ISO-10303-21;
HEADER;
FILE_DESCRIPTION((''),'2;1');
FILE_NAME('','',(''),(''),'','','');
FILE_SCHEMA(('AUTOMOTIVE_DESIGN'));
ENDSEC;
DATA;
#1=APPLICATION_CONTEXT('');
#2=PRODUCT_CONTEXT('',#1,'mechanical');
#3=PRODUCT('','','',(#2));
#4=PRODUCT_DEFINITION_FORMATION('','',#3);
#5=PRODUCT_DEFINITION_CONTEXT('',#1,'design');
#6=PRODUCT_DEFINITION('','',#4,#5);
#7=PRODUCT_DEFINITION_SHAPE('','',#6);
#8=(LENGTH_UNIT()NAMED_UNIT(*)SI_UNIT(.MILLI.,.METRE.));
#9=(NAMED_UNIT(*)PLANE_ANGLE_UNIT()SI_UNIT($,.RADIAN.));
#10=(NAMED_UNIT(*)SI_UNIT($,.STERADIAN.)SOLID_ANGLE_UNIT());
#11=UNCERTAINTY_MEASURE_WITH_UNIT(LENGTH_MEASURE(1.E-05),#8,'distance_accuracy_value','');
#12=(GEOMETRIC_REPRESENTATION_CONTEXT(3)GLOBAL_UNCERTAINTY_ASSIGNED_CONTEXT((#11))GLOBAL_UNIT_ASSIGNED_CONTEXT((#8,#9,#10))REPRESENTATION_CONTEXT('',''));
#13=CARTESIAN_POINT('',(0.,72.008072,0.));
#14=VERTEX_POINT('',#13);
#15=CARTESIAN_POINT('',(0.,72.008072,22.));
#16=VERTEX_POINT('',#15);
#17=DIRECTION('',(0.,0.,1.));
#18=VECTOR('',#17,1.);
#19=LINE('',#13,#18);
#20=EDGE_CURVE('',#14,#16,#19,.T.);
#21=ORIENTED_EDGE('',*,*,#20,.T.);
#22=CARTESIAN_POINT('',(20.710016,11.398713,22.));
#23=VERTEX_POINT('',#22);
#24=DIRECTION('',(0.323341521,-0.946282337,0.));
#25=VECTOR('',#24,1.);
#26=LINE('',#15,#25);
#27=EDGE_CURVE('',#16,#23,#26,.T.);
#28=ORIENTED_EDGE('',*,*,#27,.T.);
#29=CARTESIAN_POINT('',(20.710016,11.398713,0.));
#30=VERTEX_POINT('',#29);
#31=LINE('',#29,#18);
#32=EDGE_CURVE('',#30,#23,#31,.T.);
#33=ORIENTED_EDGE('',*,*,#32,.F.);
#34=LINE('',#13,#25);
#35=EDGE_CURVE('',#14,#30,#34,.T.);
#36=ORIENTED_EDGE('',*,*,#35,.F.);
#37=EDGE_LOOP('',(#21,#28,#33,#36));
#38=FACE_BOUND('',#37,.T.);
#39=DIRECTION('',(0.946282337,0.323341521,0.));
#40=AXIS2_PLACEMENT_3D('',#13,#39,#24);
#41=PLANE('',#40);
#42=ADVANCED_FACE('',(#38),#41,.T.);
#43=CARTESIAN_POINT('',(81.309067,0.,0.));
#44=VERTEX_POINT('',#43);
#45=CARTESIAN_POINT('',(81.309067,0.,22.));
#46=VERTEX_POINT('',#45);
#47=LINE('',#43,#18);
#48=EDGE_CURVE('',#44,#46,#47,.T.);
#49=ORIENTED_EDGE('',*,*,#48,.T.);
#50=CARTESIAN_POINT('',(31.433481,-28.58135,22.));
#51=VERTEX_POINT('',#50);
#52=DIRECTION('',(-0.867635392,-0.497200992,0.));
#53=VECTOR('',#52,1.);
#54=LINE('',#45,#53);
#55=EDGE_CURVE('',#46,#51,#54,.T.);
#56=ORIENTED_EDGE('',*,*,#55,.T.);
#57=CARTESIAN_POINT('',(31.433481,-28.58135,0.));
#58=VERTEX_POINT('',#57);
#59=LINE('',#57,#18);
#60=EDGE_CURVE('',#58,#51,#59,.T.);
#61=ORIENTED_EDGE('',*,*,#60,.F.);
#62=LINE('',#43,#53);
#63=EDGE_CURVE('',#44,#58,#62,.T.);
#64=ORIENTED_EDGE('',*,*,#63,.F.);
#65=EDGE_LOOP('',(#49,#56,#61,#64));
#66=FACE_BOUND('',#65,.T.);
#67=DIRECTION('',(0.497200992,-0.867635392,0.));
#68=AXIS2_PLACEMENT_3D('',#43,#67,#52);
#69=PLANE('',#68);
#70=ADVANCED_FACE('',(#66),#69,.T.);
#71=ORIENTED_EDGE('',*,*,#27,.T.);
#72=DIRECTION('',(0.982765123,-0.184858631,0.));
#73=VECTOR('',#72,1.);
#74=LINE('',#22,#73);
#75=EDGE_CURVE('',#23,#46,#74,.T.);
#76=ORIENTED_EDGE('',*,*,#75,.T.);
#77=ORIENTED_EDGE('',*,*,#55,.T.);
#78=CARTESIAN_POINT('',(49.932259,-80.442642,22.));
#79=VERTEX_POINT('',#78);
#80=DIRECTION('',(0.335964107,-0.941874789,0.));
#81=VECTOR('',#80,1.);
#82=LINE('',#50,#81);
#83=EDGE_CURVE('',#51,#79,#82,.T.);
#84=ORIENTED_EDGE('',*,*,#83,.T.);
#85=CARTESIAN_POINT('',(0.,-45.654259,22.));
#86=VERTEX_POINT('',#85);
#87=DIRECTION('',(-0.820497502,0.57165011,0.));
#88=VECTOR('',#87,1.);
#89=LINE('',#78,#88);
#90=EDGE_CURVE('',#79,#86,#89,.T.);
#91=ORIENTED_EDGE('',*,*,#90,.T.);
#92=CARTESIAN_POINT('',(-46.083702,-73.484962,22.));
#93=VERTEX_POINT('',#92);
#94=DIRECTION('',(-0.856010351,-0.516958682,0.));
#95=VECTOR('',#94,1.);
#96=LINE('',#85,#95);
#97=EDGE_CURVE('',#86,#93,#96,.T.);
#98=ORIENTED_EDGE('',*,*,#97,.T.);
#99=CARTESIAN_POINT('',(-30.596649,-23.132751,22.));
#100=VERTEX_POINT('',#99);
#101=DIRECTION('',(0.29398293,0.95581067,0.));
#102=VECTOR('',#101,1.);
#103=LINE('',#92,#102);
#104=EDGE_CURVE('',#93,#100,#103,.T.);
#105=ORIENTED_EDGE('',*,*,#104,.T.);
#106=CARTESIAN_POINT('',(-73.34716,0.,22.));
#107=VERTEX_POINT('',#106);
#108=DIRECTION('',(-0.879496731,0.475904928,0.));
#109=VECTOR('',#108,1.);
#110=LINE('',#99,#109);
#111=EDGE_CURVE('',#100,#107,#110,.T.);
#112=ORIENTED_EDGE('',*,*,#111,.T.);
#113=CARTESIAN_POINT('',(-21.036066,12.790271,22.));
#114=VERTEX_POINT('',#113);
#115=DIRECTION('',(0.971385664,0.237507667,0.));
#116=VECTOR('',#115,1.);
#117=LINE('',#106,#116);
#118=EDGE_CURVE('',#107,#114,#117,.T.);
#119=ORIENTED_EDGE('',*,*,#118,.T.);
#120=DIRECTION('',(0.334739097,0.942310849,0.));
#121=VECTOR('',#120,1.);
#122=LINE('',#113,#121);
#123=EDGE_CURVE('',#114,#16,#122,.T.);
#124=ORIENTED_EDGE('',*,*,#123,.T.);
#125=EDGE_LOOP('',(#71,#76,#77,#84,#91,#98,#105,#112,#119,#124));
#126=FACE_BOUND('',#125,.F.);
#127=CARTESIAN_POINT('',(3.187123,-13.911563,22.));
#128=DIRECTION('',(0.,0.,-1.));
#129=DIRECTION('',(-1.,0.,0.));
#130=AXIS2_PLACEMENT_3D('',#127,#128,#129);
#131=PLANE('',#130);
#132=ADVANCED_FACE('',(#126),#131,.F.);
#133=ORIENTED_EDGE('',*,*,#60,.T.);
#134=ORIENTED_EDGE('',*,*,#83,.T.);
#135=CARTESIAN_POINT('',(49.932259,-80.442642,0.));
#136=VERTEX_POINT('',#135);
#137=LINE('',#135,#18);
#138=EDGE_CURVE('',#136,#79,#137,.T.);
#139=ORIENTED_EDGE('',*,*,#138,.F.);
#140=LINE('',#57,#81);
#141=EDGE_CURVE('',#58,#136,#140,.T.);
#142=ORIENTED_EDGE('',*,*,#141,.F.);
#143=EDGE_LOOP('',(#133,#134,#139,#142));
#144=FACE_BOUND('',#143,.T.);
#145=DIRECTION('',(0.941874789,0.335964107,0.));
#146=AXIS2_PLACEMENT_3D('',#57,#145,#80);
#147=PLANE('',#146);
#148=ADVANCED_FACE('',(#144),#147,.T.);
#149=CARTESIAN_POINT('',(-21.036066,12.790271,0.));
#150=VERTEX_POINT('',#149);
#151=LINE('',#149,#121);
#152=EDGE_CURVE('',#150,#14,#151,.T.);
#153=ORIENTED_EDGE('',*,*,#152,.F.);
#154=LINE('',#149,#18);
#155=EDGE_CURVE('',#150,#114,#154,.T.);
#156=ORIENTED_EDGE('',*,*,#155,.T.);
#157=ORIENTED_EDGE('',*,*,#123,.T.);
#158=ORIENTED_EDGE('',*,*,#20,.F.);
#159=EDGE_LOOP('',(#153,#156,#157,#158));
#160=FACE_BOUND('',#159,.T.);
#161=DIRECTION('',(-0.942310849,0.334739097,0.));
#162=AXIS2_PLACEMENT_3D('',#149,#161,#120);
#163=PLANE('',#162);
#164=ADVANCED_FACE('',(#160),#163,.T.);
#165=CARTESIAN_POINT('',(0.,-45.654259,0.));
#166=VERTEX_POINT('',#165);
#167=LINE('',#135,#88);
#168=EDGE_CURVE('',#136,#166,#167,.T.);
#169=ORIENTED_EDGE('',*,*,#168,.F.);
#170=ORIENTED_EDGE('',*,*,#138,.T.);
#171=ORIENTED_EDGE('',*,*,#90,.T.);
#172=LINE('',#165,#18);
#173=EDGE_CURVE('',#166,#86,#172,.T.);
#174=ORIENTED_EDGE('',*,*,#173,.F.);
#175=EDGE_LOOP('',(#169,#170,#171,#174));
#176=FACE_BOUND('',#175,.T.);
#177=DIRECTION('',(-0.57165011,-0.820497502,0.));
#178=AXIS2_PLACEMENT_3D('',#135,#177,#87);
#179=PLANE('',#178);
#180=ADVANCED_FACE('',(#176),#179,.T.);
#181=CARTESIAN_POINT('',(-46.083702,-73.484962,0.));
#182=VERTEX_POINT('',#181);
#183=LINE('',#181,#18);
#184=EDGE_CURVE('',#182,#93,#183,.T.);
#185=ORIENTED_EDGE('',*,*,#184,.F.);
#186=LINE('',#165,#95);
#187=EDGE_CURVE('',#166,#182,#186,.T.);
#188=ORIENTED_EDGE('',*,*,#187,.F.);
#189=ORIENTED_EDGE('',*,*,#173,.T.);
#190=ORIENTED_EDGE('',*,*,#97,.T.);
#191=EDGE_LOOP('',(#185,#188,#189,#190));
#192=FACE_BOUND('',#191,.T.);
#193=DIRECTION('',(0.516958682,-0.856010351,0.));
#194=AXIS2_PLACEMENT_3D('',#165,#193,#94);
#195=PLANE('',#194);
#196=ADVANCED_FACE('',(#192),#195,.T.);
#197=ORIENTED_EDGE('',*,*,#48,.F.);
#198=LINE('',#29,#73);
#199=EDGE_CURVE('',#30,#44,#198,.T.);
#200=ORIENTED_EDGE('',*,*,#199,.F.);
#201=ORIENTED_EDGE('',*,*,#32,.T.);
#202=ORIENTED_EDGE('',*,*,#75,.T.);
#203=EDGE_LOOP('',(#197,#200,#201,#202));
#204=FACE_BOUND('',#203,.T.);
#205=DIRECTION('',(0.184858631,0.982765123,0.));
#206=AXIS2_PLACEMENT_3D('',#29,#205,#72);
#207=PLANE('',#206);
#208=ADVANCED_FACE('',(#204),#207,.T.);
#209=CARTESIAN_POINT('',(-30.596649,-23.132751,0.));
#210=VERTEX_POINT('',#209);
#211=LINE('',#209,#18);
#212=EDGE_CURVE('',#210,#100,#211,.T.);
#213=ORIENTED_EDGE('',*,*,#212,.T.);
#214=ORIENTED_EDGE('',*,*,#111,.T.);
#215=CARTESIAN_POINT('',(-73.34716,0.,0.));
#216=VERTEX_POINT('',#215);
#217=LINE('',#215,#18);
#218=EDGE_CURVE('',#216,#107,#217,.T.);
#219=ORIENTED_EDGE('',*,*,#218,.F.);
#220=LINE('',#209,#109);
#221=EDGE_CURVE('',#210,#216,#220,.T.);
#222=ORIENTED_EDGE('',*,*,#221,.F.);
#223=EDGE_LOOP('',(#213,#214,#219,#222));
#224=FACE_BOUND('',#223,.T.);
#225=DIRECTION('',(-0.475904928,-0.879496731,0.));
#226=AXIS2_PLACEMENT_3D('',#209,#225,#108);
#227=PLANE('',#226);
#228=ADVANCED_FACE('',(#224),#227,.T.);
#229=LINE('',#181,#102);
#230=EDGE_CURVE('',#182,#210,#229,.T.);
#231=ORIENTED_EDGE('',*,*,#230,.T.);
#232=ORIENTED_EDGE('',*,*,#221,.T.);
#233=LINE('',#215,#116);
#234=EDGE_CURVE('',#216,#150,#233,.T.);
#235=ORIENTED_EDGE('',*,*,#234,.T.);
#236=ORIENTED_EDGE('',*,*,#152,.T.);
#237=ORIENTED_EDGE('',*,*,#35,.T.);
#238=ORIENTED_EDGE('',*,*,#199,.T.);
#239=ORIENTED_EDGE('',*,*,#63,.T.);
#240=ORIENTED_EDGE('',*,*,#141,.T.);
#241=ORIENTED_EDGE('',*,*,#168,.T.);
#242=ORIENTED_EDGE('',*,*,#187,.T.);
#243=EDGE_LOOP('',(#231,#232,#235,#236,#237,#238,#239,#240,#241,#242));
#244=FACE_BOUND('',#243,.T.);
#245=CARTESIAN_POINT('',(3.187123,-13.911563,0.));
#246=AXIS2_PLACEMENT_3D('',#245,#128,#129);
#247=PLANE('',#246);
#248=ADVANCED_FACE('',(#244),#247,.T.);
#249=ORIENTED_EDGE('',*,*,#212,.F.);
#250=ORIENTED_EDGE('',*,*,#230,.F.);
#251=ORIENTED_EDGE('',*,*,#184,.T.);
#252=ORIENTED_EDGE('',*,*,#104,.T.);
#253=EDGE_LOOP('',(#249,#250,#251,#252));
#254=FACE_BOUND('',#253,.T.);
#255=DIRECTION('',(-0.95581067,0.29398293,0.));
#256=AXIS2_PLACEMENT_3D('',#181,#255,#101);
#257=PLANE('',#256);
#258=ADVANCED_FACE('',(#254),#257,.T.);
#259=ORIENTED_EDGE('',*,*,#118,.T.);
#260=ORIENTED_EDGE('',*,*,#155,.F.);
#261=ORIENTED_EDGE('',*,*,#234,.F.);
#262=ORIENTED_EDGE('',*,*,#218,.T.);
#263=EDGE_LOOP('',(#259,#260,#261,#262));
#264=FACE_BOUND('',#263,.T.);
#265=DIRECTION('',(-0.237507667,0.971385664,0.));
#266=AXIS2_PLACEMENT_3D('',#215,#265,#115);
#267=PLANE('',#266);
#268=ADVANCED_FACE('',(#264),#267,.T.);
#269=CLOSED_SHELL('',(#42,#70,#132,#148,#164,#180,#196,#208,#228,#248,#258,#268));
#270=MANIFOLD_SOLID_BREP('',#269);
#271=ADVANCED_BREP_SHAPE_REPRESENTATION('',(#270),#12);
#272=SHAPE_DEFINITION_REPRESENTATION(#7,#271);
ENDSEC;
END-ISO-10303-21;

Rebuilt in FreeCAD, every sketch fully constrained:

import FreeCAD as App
import Part
import Sketcher
from FreeCAD import Vector

doc = App.newDocument("Part")
params = doc.addObject("Spreadsheet::Sheet", "Params")
for row, (alias, value) in enumerate([
    ("pad1_length", "22 mm"),
], start=1):
    params.set(f"A{row}", alias)
    params.set(f"B{row}", "=" + value)
    params.setAlias(f"B{row}", alias)

body = doc.addObject("PartDesign::Body", "Body")

# Sketch on XY plane
sketch1 = body.newObject("Sketcher::SketchObject", "Sketch")
sketch1.AttachmentSupport = (doc.getObject("XY_Plane"), [""])
sketch1.MapMode = "FlatFace"
sketch1.addGeometry([
    Part.LineSegment(Vector(21, 11, 0), Vector(0, 72, 0)),  # 0
    Part.LineSegment(Vector(0, 72, 0), Vector(-21, 13, 0)),  # 1
    Part.LineSegment(Vector(-21, 13, 0), Vector(-73, 0, 0)),  # 2
    Part.LineSegment(Vector(-73, 0, 0), Vector(-31, -23, 0)),  # 3
    Part.LineSegment(Vector(-31, -23, 0), Vector(-46, -73, 0)),  # 4
    Part.LineSegment(Vector(-46, -73, 0), Vector(0, -46, 0)),  # 5
    Part.LineSegment(Vector(0, -46, 0), Vector(50, -80, 0)),  # 6
    Part.LineSegment(Vector(50, -80, 0), Vector(31, -29, 0)),  # 7
    Part.LineSegment(Vector(31, -29, 0), Vector(81, 0, 0)),  # 8
    Part.LineSegment(Vector(81, 0, 0), Vector(21, 11, 0)),  # 9
], False)
sketch1.addConstraint([
    Sketcher.Constraint("Coincident", 0, 2, 1, 1),
    Sketcher.Constraint("Coincident", 1, 2, 2, 1),
    Sketcher.Constraint("Coincident", 2, 2, 3, 1),
    Sketcher.Constraint("Coincident", 3, 2, 4, 1),
    Sketcher.Constraint("Coincident", 4, 2, 5, 1),
    Sketcher.Constraint("Coincident", 5, 2, 6, 1),
    Sketcher.Constraint("Coincident", 6, 2, 7, 1),
    Sketcher.Constraint("Coincident", 7, 2, 8, 1),
    Sketcher.Constraint("Coincident", 8, 2, 9, 1),
    Sketcher.Constraint("Coincident", 9, 2, 0, 1),
    Sketcher.Constraint("PointOnObject", 0, 2, -2),
    Sketcher.Constraint("PointOnObject", 2, 2, -1),
    Sketcher.Constraint("PointOnObject", 5, 2, -2),
    Sketcher.Constraint("PointOnObject", 8, 2, -1),
    Sketcher.Constraint("Distance", 8, 57.484499),
    Sketcher.Constraint("DistanceY", 1, 2, 0, 2, 59.217801),
    Sketcher.Constraint("DistanceY", 7, 2, 3, 2, 5.448599),
    Sketcher.Constraint("Distance", 1, 62.84317),
    Sketcher.Constraint("Distance", 4, 52.68011),
    Sketcher.Constraint("Distance", 5, 53.835449),
    Sketcher.Constraint("Distance", 7, 55.061769),
    Sketcher.Constraint("DistanceY", -1, 1, 0, 2, 72.008072),
    Sketcher.Constraint("DistanceX", 2, 2, -1, 1, 73.34716),
    Sketcher.Constraint("DistanceX", 3, 2, -1, 1, 30.596649),
    Sketcher.Constraint("DistanceY", 3, 2, -1, 1, 23.132751),
    Sketcher.Constraint("DistanceY", 4, 2, -1, 1, 73.484962),
    Sketcher.Constraint("DistanceX", -1, 1, 6, 2, 49.932259),
    Sketcher.Constraint("DistanceX", -1, 1, 7, 2, 31.433481),
    Sketcher.Constraint("DistanceX", 9, 2, 8, 2, 60.599051),
    Sketcher.Constraint("Distance", 0, 64.049974),
])
pad1 = body.newObject("PartDesign::Pad", "Pad")
pad1.Profile = sketch1
pad1.setExpression("Length", "Params.pad1_length")

doc.recompute()
